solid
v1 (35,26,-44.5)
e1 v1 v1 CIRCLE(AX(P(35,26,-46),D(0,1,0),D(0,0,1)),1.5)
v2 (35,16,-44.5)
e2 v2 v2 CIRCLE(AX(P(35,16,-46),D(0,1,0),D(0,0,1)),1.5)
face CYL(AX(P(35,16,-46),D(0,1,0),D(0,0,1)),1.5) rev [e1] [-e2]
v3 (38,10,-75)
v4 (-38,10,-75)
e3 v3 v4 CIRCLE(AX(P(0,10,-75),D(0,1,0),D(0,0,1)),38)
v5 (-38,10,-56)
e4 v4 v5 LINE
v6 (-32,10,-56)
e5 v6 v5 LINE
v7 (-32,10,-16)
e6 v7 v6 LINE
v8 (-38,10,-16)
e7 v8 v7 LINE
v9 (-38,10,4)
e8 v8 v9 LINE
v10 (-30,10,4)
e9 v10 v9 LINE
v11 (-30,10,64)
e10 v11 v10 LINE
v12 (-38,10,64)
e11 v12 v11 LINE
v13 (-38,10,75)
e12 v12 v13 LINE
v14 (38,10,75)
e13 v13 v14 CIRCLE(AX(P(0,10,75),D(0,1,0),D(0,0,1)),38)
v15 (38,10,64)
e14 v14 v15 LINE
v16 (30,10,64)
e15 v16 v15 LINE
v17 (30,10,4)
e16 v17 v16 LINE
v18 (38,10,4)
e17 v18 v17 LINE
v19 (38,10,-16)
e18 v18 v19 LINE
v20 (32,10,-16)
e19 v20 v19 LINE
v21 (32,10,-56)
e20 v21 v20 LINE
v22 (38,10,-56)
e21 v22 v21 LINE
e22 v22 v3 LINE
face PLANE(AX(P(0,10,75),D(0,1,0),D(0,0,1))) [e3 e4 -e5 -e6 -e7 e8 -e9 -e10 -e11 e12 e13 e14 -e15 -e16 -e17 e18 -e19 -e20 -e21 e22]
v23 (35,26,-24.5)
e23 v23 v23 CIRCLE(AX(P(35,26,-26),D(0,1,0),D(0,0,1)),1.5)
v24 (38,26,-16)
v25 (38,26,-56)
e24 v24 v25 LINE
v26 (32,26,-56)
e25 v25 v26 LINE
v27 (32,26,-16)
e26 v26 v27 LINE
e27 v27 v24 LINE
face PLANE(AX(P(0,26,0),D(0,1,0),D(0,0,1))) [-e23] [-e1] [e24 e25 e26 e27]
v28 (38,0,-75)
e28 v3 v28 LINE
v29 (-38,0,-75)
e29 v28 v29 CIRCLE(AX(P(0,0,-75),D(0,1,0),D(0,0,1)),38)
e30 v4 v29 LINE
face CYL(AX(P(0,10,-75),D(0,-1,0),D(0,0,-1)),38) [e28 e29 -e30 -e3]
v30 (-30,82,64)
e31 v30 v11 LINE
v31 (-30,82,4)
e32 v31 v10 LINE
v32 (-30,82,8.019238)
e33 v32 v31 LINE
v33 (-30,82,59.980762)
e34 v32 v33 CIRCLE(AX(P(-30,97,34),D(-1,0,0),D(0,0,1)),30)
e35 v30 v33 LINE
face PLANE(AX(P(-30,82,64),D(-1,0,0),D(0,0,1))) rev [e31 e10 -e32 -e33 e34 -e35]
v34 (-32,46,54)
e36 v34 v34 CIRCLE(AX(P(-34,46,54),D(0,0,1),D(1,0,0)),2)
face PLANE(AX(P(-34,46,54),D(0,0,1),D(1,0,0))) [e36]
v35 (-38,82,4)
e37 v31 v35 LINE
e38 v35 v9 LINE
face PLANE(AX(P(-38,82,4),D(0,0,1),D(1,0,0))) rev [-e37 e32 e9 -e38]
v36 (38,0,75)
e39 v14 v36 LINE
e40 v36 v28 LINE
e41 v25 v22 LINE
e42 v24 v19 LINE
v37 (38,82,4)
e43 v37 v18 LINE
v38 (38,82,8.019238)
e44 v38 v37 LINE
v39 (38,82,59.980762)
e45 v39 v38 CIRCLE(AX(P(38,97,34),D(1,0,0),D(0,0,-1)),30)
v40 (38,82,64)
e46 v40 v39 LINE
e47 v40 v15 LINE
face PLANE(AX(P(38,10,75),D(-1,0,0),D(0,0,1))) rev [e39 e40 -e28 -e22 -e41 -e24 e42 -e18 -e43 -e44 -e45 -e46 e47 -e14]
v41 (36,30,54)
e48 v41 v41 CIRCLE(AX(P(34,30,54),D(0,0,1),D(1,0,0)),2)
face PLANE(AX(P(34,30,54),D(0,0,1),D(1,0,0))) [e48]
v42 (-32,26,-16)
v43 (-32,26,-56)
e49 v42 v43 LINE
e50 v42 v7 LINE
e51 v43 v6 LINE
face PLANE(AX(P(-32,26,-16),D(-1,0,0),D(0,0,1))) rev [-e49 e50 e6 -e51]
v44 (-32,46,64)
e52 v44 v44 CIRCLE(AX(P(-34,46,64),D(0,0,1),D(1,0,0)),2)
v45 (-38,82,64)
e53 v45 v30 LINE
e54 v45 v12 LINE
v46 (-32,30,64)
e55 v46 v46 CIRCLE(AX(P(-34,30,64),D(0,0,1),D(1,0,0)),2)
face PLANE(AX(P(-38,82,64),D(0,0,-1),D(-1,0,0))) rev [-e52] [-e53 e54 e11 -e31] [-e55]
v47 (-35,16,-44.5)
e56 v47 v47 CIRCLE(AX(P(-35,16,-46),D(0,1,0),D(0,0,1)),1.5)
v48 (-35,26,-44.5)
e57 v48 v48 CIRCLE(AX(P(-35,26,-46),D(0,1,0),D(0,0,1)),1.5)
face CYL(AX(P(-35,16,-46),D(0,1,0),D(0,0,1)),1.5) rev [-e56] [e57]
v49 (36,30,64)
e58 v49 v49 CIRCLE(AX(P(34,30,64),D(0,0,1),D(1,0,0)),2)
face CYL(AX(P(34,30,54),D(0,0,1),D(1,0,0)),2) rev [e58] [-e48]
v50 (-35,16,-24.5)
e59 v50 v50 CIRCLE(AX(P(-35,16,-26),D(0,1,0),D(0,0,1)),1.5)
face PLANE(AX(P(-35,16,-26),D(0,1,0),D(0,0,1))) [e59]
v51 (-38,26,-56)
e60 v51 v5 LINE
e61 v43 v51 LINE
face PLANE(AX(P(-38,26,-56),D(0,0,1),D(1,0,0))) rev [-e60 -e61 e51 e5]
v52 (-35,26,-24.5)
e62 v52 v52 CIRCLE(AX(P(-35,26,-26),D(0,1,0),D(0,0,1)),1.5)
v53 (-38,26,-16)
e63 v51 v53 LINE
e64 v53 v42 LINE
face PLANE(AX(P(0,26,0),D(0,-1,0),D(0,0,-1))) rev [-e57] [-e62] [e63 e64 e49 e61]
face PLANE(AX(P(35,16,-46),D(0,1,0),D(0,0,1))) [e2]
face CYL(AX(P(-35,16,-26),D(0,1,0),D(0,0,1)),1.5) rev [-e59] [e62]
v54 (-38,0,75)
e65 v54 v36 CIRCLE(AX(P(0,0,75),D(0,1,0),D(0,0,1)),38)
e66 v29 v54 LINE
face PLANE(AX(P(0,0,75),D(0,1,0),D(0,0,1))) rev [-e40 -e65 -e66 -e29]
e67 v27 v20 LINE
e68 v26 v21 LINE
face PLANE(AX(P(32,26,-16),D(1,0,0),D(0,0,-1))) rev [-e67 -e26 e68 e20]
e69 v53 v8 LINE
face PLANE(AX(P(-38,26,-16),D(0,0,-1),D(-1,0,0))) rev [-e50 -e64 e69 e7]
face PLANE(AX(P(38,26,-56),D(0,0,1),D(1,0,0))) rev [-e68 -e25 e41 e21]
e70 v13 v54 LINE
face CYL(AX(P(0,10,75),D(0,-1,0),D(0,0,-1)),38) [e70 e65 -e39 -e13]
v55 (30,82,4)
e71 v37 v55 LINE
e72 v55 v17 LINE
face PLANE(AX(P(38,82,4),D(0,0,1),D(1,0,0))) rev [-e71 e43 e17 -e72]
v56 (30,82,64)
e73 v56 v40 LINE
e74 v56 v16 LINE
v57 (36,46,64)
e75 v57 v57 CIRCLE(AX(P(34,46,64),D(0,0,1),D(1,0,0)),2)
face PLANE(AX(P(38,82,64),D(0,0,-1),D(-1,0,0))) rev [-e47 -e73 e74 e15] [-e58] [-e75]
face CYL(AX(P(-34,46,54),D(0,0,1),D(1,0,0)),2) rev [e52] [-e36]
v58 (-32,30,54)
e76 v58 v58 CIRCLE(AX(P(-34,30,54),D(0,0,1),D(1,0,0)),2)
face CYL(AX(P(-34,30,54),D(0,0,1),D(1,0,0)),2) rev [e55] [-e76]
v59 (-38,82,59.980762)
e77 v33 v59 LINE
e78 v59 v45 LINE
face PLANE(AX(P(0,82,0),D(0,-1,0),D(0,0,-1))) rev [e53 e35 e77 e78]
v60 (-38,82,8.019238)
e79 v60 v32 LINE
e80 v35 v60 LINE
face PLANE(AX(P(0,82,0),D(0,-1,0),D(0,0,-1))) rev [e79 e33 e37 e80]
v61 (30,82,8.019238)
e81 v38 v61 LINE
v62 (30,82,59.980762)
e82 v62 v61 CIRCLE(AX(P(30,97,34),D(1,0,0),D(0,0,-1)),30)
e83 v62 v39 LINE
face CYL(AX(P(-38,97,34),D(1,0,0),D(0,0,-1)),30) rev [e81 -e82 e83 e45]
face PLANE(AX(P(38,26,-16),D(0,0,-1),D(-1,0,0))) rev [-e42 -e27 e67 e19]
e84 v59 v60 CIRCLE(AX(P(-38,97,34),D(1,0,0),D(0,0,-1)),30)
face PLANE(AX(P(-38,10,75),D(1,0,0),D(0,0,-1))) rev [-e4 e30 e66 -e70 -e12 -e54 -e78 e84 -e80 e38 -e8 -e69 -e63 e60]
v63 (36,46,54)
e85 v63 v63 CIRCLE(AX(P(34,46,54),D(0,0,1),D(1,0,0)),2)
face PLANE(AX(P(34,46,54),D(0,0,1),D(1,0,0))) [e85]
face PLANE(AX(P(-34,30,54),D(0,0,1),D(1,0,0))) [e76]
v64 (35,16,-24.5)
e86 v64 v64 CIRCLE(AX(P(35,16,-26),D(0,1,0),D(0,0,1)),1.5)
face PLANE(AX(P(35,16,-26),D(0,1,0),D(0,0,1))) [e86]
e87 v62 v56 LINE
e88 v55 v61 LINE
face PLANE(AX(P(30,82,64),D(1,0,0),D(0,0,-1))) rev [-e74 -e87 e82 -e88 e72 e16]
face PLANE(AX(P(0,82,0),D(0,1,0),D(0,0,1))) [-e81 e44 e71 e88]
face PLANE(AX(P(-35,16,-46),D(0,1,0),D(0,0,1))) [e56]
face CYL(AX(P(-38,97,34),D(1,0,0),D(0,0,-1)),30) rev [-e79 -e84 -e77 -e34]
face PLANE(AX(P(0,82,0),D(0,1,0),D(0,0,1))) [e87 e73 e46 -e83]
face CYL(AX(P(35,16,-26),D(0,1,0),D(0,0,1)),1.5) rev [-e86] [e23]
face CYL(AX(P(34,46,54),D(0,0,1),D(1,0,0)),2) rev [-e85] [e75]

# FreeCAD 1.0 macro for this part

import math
import FreeCAD as App
import Part
import Sketcher
Q = App.Units.Quantity


def add_polygon(sketch, points):
    """Adds a closed chain of lines whose ends are joined by coincident constraints."""
    first, n = sketch.GeometryCount, len(points)
    for a, b in zip(points, points[1:] + points[:1]):
        sketch.addGeometry(Part.LineSegment(App.Vector(*a, 0), App.Vector(*b, 0)), False)
    for i in range(n):
        sketch.addConstraint(Sketcher.Constraint("Coincident", first + i, 2, first + (i + 1) % n, 1))

doc = App.newDocument("Part")
body = doc.addObject("PartDesign::Body", "Body")

sketch1 = body.newObject("Sketcher::SketchObject", "Sketch")
sketch1.AttachmentSupport = (doc.getObject("XZ_Plane"), [""])
sketch1.MapMode = "FlatFace"
sketch1.addGeometry([
    Part.LineSegment(App.Vector(-38, -75, 0), App.Vector(-38, 75, 0)),
    Part.ArcOfCircle(Part.Circle(App.Vector(0, 75, 0), App.Vector(0, 0, 1), 38), math.radians(0), math.radians(180)),
    Part.LineSegment(App.Vector(38, 75, 0), App.Vector(38, -75, 0)),
    Part.ArcOfCircle(Part.Circle(App.Vector(0, -75, 0), App.Vector(0, 0, 1), 38), math.radians(180), math.radians(360)),
], False)
sketch1.addConstraint([
    Sketcher.Constraint("Tangent", 0, 2, 1, 2),
    Sketcher.Constraint("Tangent", 1, 1, 2, 1),
    Sketcher.Constraint("Tangent", 2, 2, 3, 2),
    Sketcher.Constraint("Tangent", 3, 1, 0, 1),
    Sketcher.Constraint("Vertical", 0),
    Sketcher.Constraint("Vertical", 2),
    Sketcher.Constraint("Symmetric", 1, 3, 3, 3, -1, 1),
    Sketcher.Constraint("Radius", 1, Q("38 mm")),
    Sketcher.Constraint("DistanceY", 0, 1, 0, 2, Q("150 mm")),
])
pad1 = body.newObject("PartDesign::Pad", "Pad")
pad1.Profile = sketch1
pad1.Length = 10
pad1.Reversed = True

sketch2 = body.newObject("Sketcher::SketchObject", "Sketch001")
sketch2.AttachmentSupport = (doc.getObject("XZ_Plane"), [""])
sketch2.MapMode = "FlatFace"
sketch2.AttachmentOffset = App.Placement(App.Vector(0, 0, -10), App.Rotation())
add_polygon(sketch2, [(-38, 4), (-38, 64), (-30, 64), (-30, 4)])
add_polygon(sketch2, [(30, 4), (30, 64), (38, 64), (38, 4)])
sketch2.addConstraint([
    Sketcher.Constraint("Vertical", 0),
    Sketcher.Constraint("Horizontal", 1),
    Sketcher.Constraint("Vertical", 2),
    Sketcher.Constraint("Horizontal", 3),
    Sketcher.Constraint("Vertical", 4),
    Sketcher.Constraint("Horizontal", 5),
    Sketcher.Constraint("Vertical", 6),
    Sketcher.Constraint("Horizontal", 7),
    Sketcher.Constraint("Symmetric", 1, 2, 4, 2, -2),
    Sketcher.Constraint("Symmetric", 3, 2, 6, 2, -2),
    Sketcher.Constraint("DistanceX", 1, 1, 1, 2, Q("8 mm")),
    Sketcher.Constraint("DistanceY", 0, 1, 0, 2, Q("60 mm")),
    Sketcher.Constraint("DistanceX", 0, 2, -1, 1, Q("38 mm")),
    Sketcher.Constraint("DistanceY", -1, 1, 0, 2, Q("64 mm")),
])
pad2 = body.newObject("PartDesign::Pad", "Pad001")
pad2.Profile = sketch2
pad2.Length = 72
pad2.Reversed = True

sketch3 = body.newObject("Sketcher::SketchObject", "Sketch002")
sketch3.AttachmentSupport = (doc.getObject("XZ_Plane"), [""])
sketch3.MapMode = "FlatFace"
sketch3.AttachmentOffset = App.Placement(App.Vector(0, 0, -10), App.Rotation())
add_polygon(sketch3, [(-38, -56), (-38, -16), (-32, -16), (-32, -56)])
add_polygon(sketch3, [(32, -56), (32, -16), (38, -16), (38, -56)])
sketch3.addConstraint([
    Sketcher.Constraint("Vertical", 0),
    Sketcher.Constraint("Horizontal", 1),
    Sketcher.Constraint("Vertical", 2),
    Sketcher.Constraint("Horizontal", 3),
    Sketcher.Constraint("Vertical", 4),
    Sketcher.Constraint("Horizontal", 5),
    Sketcher.Constraint("Vertical", 6),
    Sketcher.Constraint("Horizontal", 7),
    Sketcher.Constraint("Symmetric", 1, 2, 4, 2, -2),
    Sketcher.Constraint("Symmetric", 3, 2, 6, 2, -2),
    Sketcher.Constraint("DistanceX", 1, 1, 1, 2, Q("6 mm")),
    Sketcher.Constraint("DistanceY", 0, 1, 0, 2, Q("40 mm")),
    Sketcher.Constraint("DistanceX", 0, 2, -1, 1, Q("38 mm")),
    Sketcher.Constraint("DistanceY", 0, 2, -1, 1, Q("16 mm")),
])
pad3 = body.newObject("PartDesign::Pad", "Pad002")
pad3.Profile = sketch3
pad3.Length = 16
pad3.Reversed = True

sketch4 = body.newObject("Sketcher::SketchObject", "Sketch003")
sketch4.AttachmentSupport = (doc.getObject("YZ_Plane"), [""])
sketch4.MapMode = "FlatFace"
sketch4.AttachmentOffset = App.Placement(App.Vector(0, 0, 38), App.Rotation())
sketch4.addGeometry(Part.Circle(App.Vector(97, 34, 0), App.Vector(0, 0, 1), 30), False)
sketch4.addConstraint([
    Sketcher.Constraint("Diameter", 0, Q("60 mm")),
    Sketcher.Constraint("DistanceX", -1, 1, 0, 3, Q("97 mm")),
    Sketcher.Constraint("DistanceY", -1, 1, 0, 3, Q("34 mm")),
])
pocket1 = body.newObject("PartDesign::Pocket", "Pocket")
pocket1.Profile = sketch4
pocket1.Type = "ThroughAll"

sketch5 = body.newObject("Sketcher::SketchObject", "Sketch004")
sketch5.AttachmentSupport = (doc.getObject("XY_Plane"), [""])
sketch5.MapMode = "FlatFace"
sketch5.AttachmentOffset = App.Placement(App.Vector(0, 0, 64), App.Rotation())
sketch5.addGeometry([
    Part.Circle(App.Vector(-34, 46, 0), App.Vector(0, 0, 1), 2),
    Part.Circle(App.Vector(-34, 30, 0), App.Vector(0, 0, 1), 2),
    Part.Circle(App.Vector(34, 46, 0), App.Vector(0, 0, 1), 2),
    Part.Circle(App.Vector(34, 30, 0), App.Vector(0, 0, 1), 2),
], False)
sketch5.addConstraint([
    Sketcher.Constraint("Equal", 0, 1),
    Sketcher.Constraint("Equal", 1, 2),
    Sketcher.Constraint("Equal", 2, 3),
    Sketcher.Constraint("Symmetric", 0, 3, 2, 3, -2),
    Sketcher.Constraint("Symmetric", 1, 3, 3, 3, -2),
    Sketcher.Constraint("Vertical", 0, 3, 1, 3),
    Sketcher.Constraint("Diameter", 0, Q("4 mm")),
    Sketcher.Constraint("DistanceX", 0, 3, -1, 1, Q("34 mm")),
    Sketcher.Constraint("DistanceY", -1, 1, 0, 3, Q("46 mm")),
    Sketcher.Constraint("DistanceY", -1, 1, 1, 3, Q("30 mm")),
])
pocket2 = body.newObject("PartDesign::Pocket", "Pocket001")
pocket2.Profile = sketch5
pocket2.Length = 10

sketch6 = body.newObject("Sketcher::SketchObject", "Sketch005")
sketch6.AttachmentSupport = (doc.getObject("XZ_Plane"), [""])
sketch6.MapMode = "FlatFace"
sketch6.AttachmentOffset = App.Placement(App.Vector(0, 0, -26), App.Rotation())
sketch6.addGeometry([
    Part.Circle(App.Vector(-35, -26, 0), App.Vector(0, 0, 1), 1.5),
    Part.Circle(App.Vector(-35, -46, 0), App.Vector(0, 0, 1), 1.5),
    Part.Circle(App.Vector(35, -26, 0), App.Vector(0, 0, 1), 1.5),
    Part.Circle(App.Vector(35, -46, 0), App.Vector(0, 0, 1), 1.5),
], False)
sketch6.addConstraint([
    Sketcher.Constraint("Equal", 0, 1),
    Sketcher.Constraint("Equal", 1, 2),
    Sketcher.Constraint("Equal", 2, 3),
    Sketcher.Constraint("Symmetric", 0, 3, 2, 3, -2),
    Sketcher.Constraint("Symmetric", 1, 3, 3, 3, -2),
    Sketcher.Constraint("Vertical", 0, 3, 1, 3),
    Sketcher.Constraint("Diameter", 0, Q("3 mm")),
    Sketcher.Constraint("DistanceX", 0, 3, -1, 1, Q("35 mm")),
    Sketcher.Constraint("DistanceY", 0, 3, -1, 1, Q("26 mm")),
    Sketcher.Constraint("DistanceY", 1, 3, -1, 1, Q("46 mm")),
])
pocket3 = body.newObject("PartDesign::Pocket", "Pocket002")
pocket3.Profile = sketch6
pocket3.Length = 10
pocket3.Reversed = True

doc.recompute()
